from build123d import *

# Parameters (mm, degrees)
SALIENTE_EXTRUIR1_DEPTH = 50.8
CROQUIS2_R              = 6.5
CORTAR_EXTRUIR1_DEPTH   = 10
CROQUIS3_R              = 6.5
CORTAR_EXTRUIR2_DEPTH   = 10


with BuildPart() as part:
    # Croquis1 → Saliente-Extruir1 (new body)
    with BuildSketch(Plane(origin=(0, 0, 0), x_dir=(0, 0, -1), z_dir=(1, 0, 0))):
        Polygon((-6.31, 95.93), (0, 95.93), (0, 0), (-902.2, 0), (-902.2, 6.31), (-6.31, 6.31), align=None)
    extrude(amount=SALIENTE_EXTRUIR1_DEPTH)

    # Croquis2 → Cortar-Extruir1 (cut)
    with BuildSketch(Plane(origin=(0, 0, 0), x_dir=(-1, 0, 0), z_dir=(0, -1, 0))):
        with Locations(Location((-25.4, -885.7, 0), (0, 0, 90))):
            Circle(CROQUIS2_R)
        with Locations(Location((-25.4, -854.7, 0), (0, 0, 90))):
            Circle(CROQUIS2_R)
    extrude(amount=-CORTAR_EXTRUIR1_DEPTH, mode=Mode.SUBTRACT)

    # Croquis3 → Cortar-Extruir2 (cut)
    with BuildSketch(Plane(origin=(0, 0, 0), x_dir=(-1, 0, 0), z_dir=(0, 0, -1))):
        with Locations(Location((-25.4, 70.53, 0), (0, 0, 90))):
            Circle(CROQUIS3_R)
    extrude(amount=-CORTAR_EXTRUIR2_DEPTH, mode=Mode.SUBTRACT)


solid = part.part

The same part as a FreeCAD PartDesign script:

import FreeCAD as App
import Part
import Sketcher

doc = App.newDocument("Part")
body = doc.addObject("PartDesign::Body", "Body")

# Sketch on YZ plane
sketch1 = doc.addObject("Sketcher::SketchObject", "Sketch")
body.addObject(sketch1)
sketch1.AttachmentSupport = (doc.YZ_Plane, [""])
sketch1.MapMode = "FlatFace"
sketch1.addGeometry([
    Part.LineSegment(App.Vector(96, 0, 0), App.Vector(96, 6, 0)),  # 0
    Part.LineSegment(App.Vector(96, 6, 0), App.Vector(6, 6, 0)),  # 1
    Part.LineSegment(App.Vector(6, 6, 0), App.Vector(6, 902, 0)),  # 2
    Part.LineSegment(App.Vector(6, 902, 0), App.Vector(0, 902, 0)),  # 3
    Part.LineSegment(App.Vector(0, 902, 0), App.Vector(0, 0, 0)),  # 4
    Part.LineSegment(App.Vector(0, 0, 0), App.Vector(96, 0, 0)),  # 5
], False)
sketch1.addConstraint([
    Sketcher.Constraint("Coincident", 0, 2, 1, 1),
    Sketcher.Constraint("Coincident", 1, 2, 2, 1),
    Sketcher.Constraint("Coincident", 2, 2, 3, 1),
    Sketcher.Constraint("Coincident", 3, 2, 4, 1),
    Sketcher.Constraint("Coincident", 4, 2, 5, 1),
    Sketcher.Constraint("Coincident", 5, 2, 0, 1),
    Sketcher.Constraint("Vertical", 0),
    Sketcher.Constraint("Horizontal", 1),
    Sketcher.Constraint("Vertical", 2),
    Sketcher.Constraint("Horizontal", 3),
    Sketcher.Constraint("Vertical", 4),
    Sketcher.Constraint("Horizontal", 5),
    Sketcher.Constraint("Coincident", 4, 2, -1, 1),
    Sketcher.Constraint("Equal", 3, 0),
    Sketcher.Constraint("DistanceY", 4, 2, 4, 1, 902.2),
    Sketcher.Constraint("DistanceX", 1, 2, 1, 1, 89.62),
    Sketcher.Constraint("DistanceX", 3, 2, 3, 1, 6.31),
])
pad1 = doc.addObject("PartDesign::Pad", "Pad")
body.addObject(pad1)
pad1.Profile = sketch1
pad1.Length = 50.8

# Sketch on XZ plane
sketch2 = doc.addObject("Sketcher::SketchObject", "Sketch001")
body.addObject(sketch2)
sketch2.AttachmentSupport = (doc.XZ_Plane, [""])
sketch2.MapMode = "FlatFace"
sketch2.addGeometry([
    Part.Circle(App.Vector(25, 886, 0), App.Vector(0, 0, 1), 6),
    Part.Circle(App.Vector(25, 855, 0), App.Vector(0, 0, 1), 6),
], False)
sketch2.addConstraint([
    Sketcher.Constraint("Equal", 0, 1),
    Sketcher.Constraint("Vertical", 0, 3, 1, 3),
    Sketcher.Constraint("Diameter", 0, 13.0),
    Sketcher.Constraint("DistanceY", 1, 3, 0, 3, 31.0),
    Sketcher.Constraint("DistanceX", -1, 1, 0, 3, 25.4),
    Sketcher.Constraint("DistanceY", -1, 1, 0, 3, 885.7),
])
pocket1 = doc.addObject("PartDesign::Pocket", "Pocket")
body.addObject(pocket1)
pocket1.Profile = sketch2
pocket1.Length = 10

# Sketch on XY plane
sketch3 = doc.addObject("Sketcher::SketchObject", "Sketch002")
body.addObject(sketch3)
sketch3.AttachmentSupport = (doc.XY_Plane, [""])
sketch3.MapMode = "FlatFace"
sketch3.addGeometry(Part.Circle(App.Vector(25, 71, 0), App.Vector(0, 0, 1), 6), False)
sketch3.addConstraint([
    Sketcher.Constraint("Diameter", 0, 13.0),
    Sketcher.Constraint("DistanceX", -1, 1, 0, 3, 25.4),
    Sketcher.Constraint("DistanceY", -1, 1, 0, 3, 70.53),
])
pocket2 = doc.addObject("PartDesign::Pocket", "Pocket001")
body.addObject(pocket2)
pocket2.Profile = sketch3
pocket2.Length = 10
pocket2.Reversed = True

doc.recompute()
